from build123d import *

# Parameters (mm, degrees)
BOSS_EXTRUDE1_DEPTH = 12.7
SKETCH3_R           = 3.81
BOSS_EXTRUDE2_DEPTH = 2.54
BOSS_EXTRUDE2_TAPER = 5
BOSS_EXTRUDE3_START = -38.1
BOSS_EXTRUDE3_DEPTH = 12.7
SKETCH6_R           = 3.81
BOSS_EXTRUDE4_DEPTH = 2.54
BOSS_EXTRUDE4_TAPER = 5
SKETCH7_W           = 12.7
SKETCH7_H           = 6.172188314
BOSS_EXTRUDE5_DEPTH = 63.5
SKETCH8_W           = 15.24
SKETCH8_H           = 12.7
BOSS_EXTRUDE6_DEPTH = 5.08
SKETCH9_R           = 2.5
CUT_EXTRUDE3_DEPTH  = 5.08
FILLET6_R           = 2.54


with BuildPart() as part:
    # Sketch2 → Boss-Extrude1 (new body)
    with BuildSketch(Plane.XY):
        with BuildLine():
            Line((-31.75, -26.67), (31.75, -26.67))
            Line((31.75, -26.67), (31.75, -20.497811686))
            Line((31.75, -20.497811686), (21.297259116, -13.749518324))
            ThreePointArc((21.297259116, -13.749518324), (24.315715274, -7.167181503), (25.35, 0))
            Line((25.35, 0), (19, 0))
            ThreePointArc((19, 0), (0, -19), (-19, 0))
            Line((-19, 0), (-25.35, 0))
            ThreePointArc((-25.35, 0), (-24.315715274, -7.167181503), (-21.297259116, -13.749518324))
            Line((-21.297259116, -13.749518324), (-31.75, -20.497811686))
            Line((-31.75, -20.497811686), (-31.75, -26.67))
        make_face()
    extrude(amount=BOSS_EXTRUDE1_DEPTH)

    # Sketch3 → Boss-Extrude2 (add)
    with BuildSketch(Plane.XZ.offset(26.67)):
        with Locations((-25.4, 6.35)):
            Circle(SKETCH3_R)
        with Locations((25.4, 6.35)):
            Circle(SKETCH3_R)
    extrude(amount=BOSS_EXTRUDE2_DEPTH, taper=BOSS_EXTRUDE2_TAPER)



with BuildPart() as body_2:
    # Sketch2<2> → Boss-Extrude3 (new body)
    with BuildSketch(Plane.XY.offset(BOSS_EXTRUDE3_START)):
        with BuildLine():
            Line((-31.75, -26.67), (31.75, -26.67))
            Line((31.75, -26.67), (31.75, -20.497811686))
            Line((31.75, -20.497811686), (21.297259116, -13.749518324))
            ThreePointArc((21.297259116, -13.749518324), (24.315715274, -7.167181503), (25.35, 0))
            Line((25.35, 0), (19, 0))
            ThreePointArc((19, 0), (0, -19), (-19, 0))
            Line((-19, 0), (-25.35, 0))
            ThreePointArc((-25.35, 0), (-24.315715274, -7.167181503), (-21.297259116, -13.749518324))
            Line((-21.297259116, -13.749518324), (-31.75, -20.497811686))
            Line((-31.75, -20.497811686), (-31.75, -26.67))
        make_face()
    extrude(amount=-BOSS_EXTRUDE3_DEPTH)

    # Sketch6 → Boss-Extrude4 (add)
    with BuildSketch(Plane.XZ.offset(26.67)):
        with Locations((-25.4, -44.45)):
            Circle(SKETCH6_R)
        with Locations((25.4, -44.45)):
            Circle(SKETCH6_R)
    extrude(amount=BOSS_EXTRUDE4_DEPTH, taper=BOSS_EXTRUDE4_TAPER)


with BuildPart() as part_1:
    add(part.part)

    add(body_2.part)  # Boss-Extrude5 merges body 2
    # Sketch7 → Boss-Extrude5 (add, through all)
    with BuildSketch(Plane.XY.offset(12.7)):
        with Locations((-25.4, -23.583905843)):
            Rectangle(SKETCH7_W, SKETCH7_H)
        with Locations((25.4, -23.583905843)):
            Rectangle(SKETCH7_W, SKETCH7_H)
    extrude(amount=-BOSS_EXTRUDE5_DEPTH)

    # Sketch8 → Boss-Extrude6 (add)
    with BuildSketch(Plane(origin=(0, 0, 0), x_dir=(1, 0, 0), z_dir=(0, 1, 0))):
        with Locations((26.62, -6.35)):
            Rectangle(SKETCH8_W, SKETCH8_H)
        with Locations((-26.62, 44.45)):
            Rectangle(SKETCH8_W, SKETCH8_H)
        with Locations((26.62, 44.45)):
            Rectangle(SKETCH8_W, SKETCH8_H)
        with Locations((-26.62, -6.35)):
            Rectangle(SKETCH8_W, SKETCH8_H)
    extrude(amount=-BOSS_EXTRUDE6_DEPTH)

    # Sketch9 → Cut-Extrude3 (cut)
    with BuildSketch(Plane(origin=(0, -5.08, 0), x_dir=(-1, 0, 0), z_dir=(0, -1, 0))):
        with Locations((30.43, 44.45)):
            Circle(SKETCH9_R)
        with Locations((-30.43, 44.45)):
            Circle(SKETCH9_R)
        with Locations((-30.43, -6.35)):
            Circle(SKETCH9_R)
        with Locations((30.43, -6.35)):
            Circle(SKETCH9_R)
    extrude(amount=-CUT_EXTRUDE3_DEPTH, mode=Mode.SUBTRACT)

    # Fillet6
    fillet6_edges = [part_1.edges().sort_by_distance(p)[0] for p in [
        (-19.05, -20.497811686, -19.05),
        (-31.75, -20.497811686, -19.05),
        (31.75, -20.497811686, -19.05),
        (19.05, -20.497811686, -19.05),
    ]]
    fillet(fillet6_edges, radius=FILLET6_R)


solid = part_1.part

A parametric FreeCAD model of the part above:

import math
import FreeCAD as App
import Part
import Sketcher

V = App.Vector
Q = App.Units.Quantity


def edges_at(feature, points):
    """Names of the edges that pass closest to the given points."""
    edges = feature.Shape.Edges
    near = lambda p: min(range(len(edges)), key=lambda i: edges[i].distToShape(Part.Vertex(*p))[0])
    return sorted({f"Edge{near(p) + 1}" for p in points})


def add_polygon(sketch, points):
    """Adds a closed chain of lines whose ends are joined by coincident constraints."""
    first, n = sketch.GeometryCount, len(points)
    for a, b in zip(points, points[1:] + points[:1]):
        sketch.addGeometry(Part.LineSegment(App.Vector(*a, 0), App.Vector(*b, 0)), False)
    for i in range(n):
        sketch.addConstraint(Sketcher.Constraint("Coincident", first + i, 2, first + (i + 1) % n, 1))

doc = App.newDocument("Part")
body = doc.addObject("PartDesign::Body", "Body")

# Sketch on XY plane
sketch1 = body.newObject("Sketcher::SketchObject", "Sketch")
sketch1.AttachmentSupport = (doc.getObject("XY_Plane"), [""])
sketch1.MapMode = "FlatFace"
sketch1.addGeometry([
    Part.LineSegment(V(-32, -27, 0), V(32, -27, 0)),  # 0
    Part.LineSegment(V(32, -27, 0), V(32, -20, 0)),  # 1
    Part.LineSegment(V(32, -20, 0), V(21, -14, 0)),  # 2
    Part.ArcOfCircle(Part.Circle(V(0, 0, 0), V(0, 0, 1), 25), math.radians(-33), math.radians(0)),  # 3
    Part.LineSegment(V(25, 0, 0), V(19, 0, 0)),  # 4
    Part.ArcOfCircle(Part.Circle(V(0, 0, 0), V(0, 0, 1), 19), math.radians(180), math.radians(360)),  # 5
    Part.LineSegment(V(-19, 0, 0), V(-25, 0, 0)),  # 6
    Part.ArcOfCircle(Part.Circle(V(0, 0, 0), V(0, 0, 1), 25), math.radians(-180), math.radians(-147)),  # 7
    Part.LineSegment(V(-21, -14, 0), V(-32, -20, 0)),  # 8
    Part.LineSegment(V(-32, -20, 0), V(-32, -27, 0)),  # 9
], False)
sketch1.addConstraint([
    Sketcher.Constraint("Coincident", 0, 2, 1, 1),
    Sketcher.Constraint("Coincident", 1, 2, 2, 1),
    Sketcher.Constraint("Coincident", 2, 2, 3, 1),
    Sketcher.Constraint("Coincident", 3, 2, 4, 1),
    Sketcher.Constraint("Coincident", 4, 2, 5, 2),
    Sketcher.Constraint("Coincident", 5, 1, 6, 1),
    Sketcher.Constraint("Coincident", 6, 2, 7, 1),
    Sketcher.Constraint("Coincident", 7, 2, 8, 1),
    Sketcher.Constraint("Coincident", 8, 2, 9, 1),
    Sketcher.Constraint("Coincident", 9, 2, 0, 1),
    Sketcher.Constraint("Horizontal", 0),
    Sketcher.Constraint("Vertical", 1),
    Sketcher.Constraint("Horizontal", 4),
    Sketcher.Constraint("Horizontal", 6),
    Sketcher.Constraint("Vertical", 9),
    Sketcher.Constraint("Coincident", 3, 3, -1, 1),
    Sketcher.Constraint("Coincident", 5, 3, -1, 1),
    Sketcher.Constraint("Coincident", 7, 3, -1, 1),
    Sketcher.Constraint("Equal", 3, 7),
    Sketcher.Constraint("Symmetric", 1, 2, 8, 2, -2),
    Sketcher.Constraint("PointOnObject", 3, 2, -1),
    Sketcher.Constraint("PointOnObject", 5, 1, -1),
    Sketcher.Constraint("Horizontal", 2, 2, 7, 2),
    Sketcher.Constraint("DistanceX", 0, 1, 0, 2, Q("2.5 in")),
    Sketcher.Constraint("DistanceX", 4, 2, 4, 1, Q("0.25 in")),
    Sketcher.Constraint("DistanceY", 0, 2, -1, 1, Q("1.05 in")),
    Sketcher.Constraint("Radius", 3, 25.35),
    Sketcher.Constraint("DistanceY", 1, 1, 1, 2, 6.172188),
    Sketcher.Constraint("DistanceX", -1, 1, 2, 2, 21.297259),
])
pad1 = body.newObject("PartDesign::Pad", "Pad")
pad1.Profile = sketch1
pad1.Length = Q("0.5 in")

# Sketch on XZ plane
sketch2 = body.newObject("Sketcher::SketchObject", "Sketch001")
sketch2.AttachmentSupport = (doc.getObject("XZ_Plane"), [""])
sketch2.MapMode = "FlatFace"
sketch2.AttachmentOffset = App.Placement(V(0, 0, 1.05 * 25.4), App.Rotation())
sketch2.addGeometry([
    Part.Circle(V(-25.4, 6.3, 0), V(0, 0, 1), 3.8),
    Part.Circle(V(25.4, 6.3, 0), V(0, 0, 1), 3.8),
], False)
sketch2.addConstraint([
    Sketcher.Constraint("Equal", 0, 1),
    Sketcher.Constraint("Symmetric", 0, 3, 1, 3, -2),
    Sketcher.Constraint("Diameter", 0, Q("0.3 in")),
    Sketcher.Constraint("DistanceX", 0, 3, -1, 1, Q("1 in")),
    Sketcher.Constraint("DistanceY", -1, 1, 0, 3, Q("0.25 in")),
])
pad2 = body.newObject("PartDesign::Pad", "Pad001")
pad2.Profile = sketch2
pad2.Length = Q("0.1 in")
pad2.TaperAngle = -5
body2 = doc.addObject("PartDesign::Body", "Body001")

# Sketch on XY plane
sketch3 = body2.newObject("Sketcher::SketchObject", "Sketch002")
sketch3.AttachmentSupport = (doc.getObject("XY_Plane001"), [""])
sketch3.MapMode = "FlatFace"
sketch3.AttachmentOffset = App.Placement(V(0, 0, -1.5 * 25.4), App.Rotation())
sketch3.addGeometry([
    Part.LineSegment(V(-32, -27, 0), V(32, -27, 0)),  # 0
    Part.LineSegment(V(32, -27, 0), V(32, -20, 0)),  # 1
    Part.LineSegment(V(32, -20, 0), V(21, -14, 0)),  # 2
    Part.ArcOfCircle(Part.Circle(V(0, 0, 0), V(0, 0, 1), 25), math.radians(-33), math.radians(0)),  # 3
    Part.LineSegment(V(25, 0, 0), V(19, 0, 0)),  # 4
    Part.ArcOfCircle(Part.Circle(V(0, 0, 0), V(0, 0, 1), 19), math.radians(180), math.radians(360)),  # 5
    Part.LineSegment(V(-19, 0, 0), V(-25, 0, 0)),  # 6
    Part.ArcOfCircle(Part.Circle(V(0, 0, 0), V(0, 0, 1), 25), math.radians(-180), math.radians(-147)),  # 7
    Part.LineSegment(V(-21, -14, 0), V(-32, -20, 0)),  # 8
    Part.LineSegment(V(-32, -20, 0), V(-32, -27, 0)),  # 9
], False)
sketch3.addConstraint([
    Sketcher.Constraint("Coincident", 0, 2, 1, 1),
    Sketcher.Constraint("Coincident", 1, 2, 2, 1),
    Sketcher.Constraint("Coincident", 2, 2, 3, 1),
    Sketcher.Constraint("Coincident", 3, 2, 4, 1),
    Sketcher.Constraint("Coincident", 4, 2, 5, 2),
    Sketcher.Constraint("Coincident", 5, 1, 6, 1),
    Sketcher.Constraint("Coincident", 6, 2, 7, 1),
    Sketcher.Constraint("Coincident", 7, 2, 8, 1),
    Sketcher.Constraint("Coincident", 8, 2, 9, 1),
    Sketcher.Constraint("Coincident", 9, 2, 0, 1),
    Sketcher.Constraint("Horizontal", 0),
    Sketcher.Constraint("Vertical", 1),
    Sketcher.Constraint("Horizontal", 4),
    Sketcher.Constraint("Horizontal", 6),
    Sketcher.Constraint("Vertical", 9),
    Sketcher.Constraint("Coincident", 3, 3, -1, 1),
    Sketcher.Constraint("Coincident", 5, 3, -1, 1),
    Sketcher.Constraint("Coincident", 7, 3, -1, 1),
    Sketcher.Constraint("Equal", 3, 7),
    Sketcher.Constraint("Symmetric", 1, 2, 8, 2, -2),
    Sketcher.Constraint("PointOnObject", 3, 2, -1),
    Sketcher.Constraint("PointOnObject", 5, 1, -1),
    Sketcher.Constraint("Horizontal", 2, 2, 7, 2),
    Sketcher.Constraint("DistanceX", 0, 1, 0, 2, Q("2.5 in")),
    Sketcher.Constraint("DistanceX", 4, 2, 4, 1, Q("0.25 in")),
    Sketcher.Constraint("DistanceY", 0, 2, -1, 1, Q("1.05 in")),
    Sketcher.Constraint("Radius", 3, 25.35),
    Sketcher.Constraint("DistanceY", 1, 1, 1, 2, 6.172188),
    Sketcher.Constraint("DistanceX", -1, 1, 2, 2, 21.297259),
])
pad3 = body2.newObject("PartDesign::Pad", "Pad002")
pad3.Profile = sketch3
pad3.Length = Q("0.5 in")
pad3.Reversed = True

# Sketch on XZ plane
sketch4 = body2.newObject("Sketcher::SketchObject", "Sketch003")
sketch4.AttachmentSupport = (doc.getObject("XZ_Plane001"), [""])
sketch4.MapMode = "FlatFace"
sketch4.AttachmentOffset = App.Placement(V(0, 0, 1.05 * 25.4), App.Rotation())
sketch4.addGeometry([
    Part.Circle(V(-25.4, -44.5, 0), V(0, 0, 1), 3.8),
    Part.Circle(V(25.4, -44.5, 0), V(0, 0, 1), 3.8),
], False)
sketch4.addConstraint([
    Sketcher.Constraint("Equal", 0, 1),
    Sketcher.Constraint("Symmetric", 0, 3, 1, 3, -2),
    Sketcher.Constraint("Diameter", 0, Q("0.3 in")),
    Sketcher.Constraint("DistanceX", 0, 3, -1, 1, Q("1 in")),
    Sketcher.Constraint("DistanceY", 0, 3, -1, 1, Q("1.75 in")),
])
pad4 = body2.newObject("PartDesign::Pad", "Pad003")
pad4.Profile = sketch4
pad4.Length = Q("0.1 in")
pad4.TaperAngle = -5
body.AllowCompound = True
doc.recompute()

boolean = body.newObject("PartDesign::Boolean", "Boolean")
boolean.Type = "Fuse"
boolean.addObjects([body2])

# Sketch on XY plane
sketch5 = body.newObject("Sketcher::SketchObject", "Sketch004")
sketch5.AttachmentSupport = (doc.getObject("XY_Plane"), [""])
sketch5.MapMode = "FlatFace"
sketch5.AttachmentOffset = App.Placement(V(0, 0, 0.5 * 25.4), App.Rotation())
add_polygon(sketch5, [(-32, -20), (-32, -27), (-19, -27), (-19, -20)])  # lines 0-3
add_polygon(sketch5, [(19, -20), (19, -27), (32, -27), (32, -20)])  # lines 4-7
sketch5.addConstraint([
    Sketcher.Constraint("Vertical", 0),
    Sketcher.Constraint("Horizontal", 1),
    Sketcher.Constraint("Vertical", 2),
    Sketcher.Constraint("Horizontal", 3),
    Sketcher.Constraint("Vertical", 4),
    Sketcher.Constraint("Horizontal", 5),
    Sketcher.Constraint("Vertical", 6),
    Sketcher.Constraint("Horizontal", 7),
    Sketcher.Constraint("Symmetric", 1, 2, 4, 2, -2),
    Sketcher.Constraint("Symmetric", 3, 2, 6, 2, -2),
    Sketcher.Constraint("DistanceX", 1, 1, 1, 2, Q("0.5 in")),
    Sketcher.Constraint("DistanceX", 0, 2, 4, 2, Q("2 in")),
    Sketcher.Constraint("DistanceY", 0, 2, -1, 1, Q("1.05 in")),
    Sketcher.Constraint("DistanceY", 0, 2, 0, 1, 6.172188),
])
pad5 = body.newObject("PartDesign::Pad", "Pad004")
pad5.Profile = sketch5
pad5.Type = "UpToLast"
pad5.Reversed = True

# Sketch on XZ plane
sketch6 = body.newObject("Sketcher::SketchObject", "Sketch005")
sketch6.AttachmentSupport = (doc.getObject("XZ_Plane"), [""])
sketch6.MapMode = "FlatFace"
add_polygon(sketch6, [(19, 0), (19, 13), (34, 13), (34, 0)])  # lines 0-3
add_polygon(sketch6, [(-34, -51), (-34, -38), (-19, -38), (-19, -51)])  # lines 4-7
add_polygon(sketch6, [(19, -51), (19, -38), (34, -38), (34, -51)])  # lines 8-11
add_polygon(sketch6, [(-34, 0), (-34, 13), (-19, 13), (-19, 0)])  # lines 12-15
sketch6.addConstraint([
    Sketcher.Constraint("Vertical", 0),
    Sketcher.Constraint("Horizontal", 1),
    Sketcher.Constraint("Vertical", 2),
    Sketcher.Constraint("Horizontal", 3),
    Sketcher.Constraint("Vertical", 4),
    Sketcher.Constraint("Horizontal", 5),
    Sketcher.Constraint("Vertical", 6),
    Sketcher.Constraint("Horizontal", 7),
    Sketcher.Constraint("Vertical", 8),
    Sketcher.Constraint("Horizontal", 9),
    Sketcher.Constraint("Vertical", 10),
    Sketcher.Constraint("Horizontal", 11),
    Sketcher.Constraint("Vertical", 12),
    Sketcher.Constraint("Horizontal", 13),
    Sketcher.Constraint("Vertical", 14),
    Sketcher.Constraint("Horizontal", 15),
    Sketcher.Constraint("Symmetric", 3, 2, 14, 2, -1, 1),
    Sketcher.Constraint("Symmetric", 5, 2, 8, 2, -2),
    Sketcher.Constraint("Symmetric", 7, 2, 10, 2, -2),
    Sketcher.Constraint("Symmetric", 1, 2, 12, 2, -2),
    Sketcher.Constraint("PointOnObject", 2, 2, -1),
    Sketcher.Constraint("Vertical", 3, 2, 8, 2),
    Sketcher.Constraint("Vertical", 2, 2, 9, 2),
    Sketcher.Constraint("Equal", 2, 4),
    Sketcher.Constraint("DistanceX", 1, 1, 1, 2, Q("0.6 in")),
    Sketcher.Constraint("DistanceY", 0, 1, 0, 2, Q("0.5 in")),
    Sketcher.Constraint("DistanceY", 6, 2, -1, 1, Q("2 in")),
    Sketcher.Constraint("DistanceX", -1, 1, 0, 2, 19.0),
])
pad6 = body.newObject("PartDesign::Pad", "Pad005")
pad6.Profile = sketch6
pad6.Length = Q("0.2 in")

# Sketch on XZ plane
sketch7 = body.newObject("Sketcher::SketchObject", "Sketch006")
sketch7.AttachmentSupport = (doc.getObject("XZ_Plane"), [""])
sketch7.MapMode = "FlatFace"
sketch7.AttachmentOffset = App.Placement(V(0, 0, 0.2 * 25.4), App.Rotation())
sketch7.addGeometry([
    Part.Circle(V(-30.4, -44.5, 0), V(0, 0, 1), 2.5),
    Part.Circle(V(30.4, -44.5, 0), V(0, 0, 1), 2.5),
    Part.Circle(V(30.4, 6.3, 0), V(0, 0, 1), 2.5),
    Part.Circle(V(-30.4, 6.3, 0), V(0, 0, 1), 2.5),
], False)
sketch7.addConstraint([
    Sketcher.Constraint("Equal", 0, 1),
    Sketcher.Constraint("Equal", 1, 2),
    Sketcher.Constraint("Equal", 2, 3),
    Sketcher.Constraint("Symmetric", 0, 3, 1, 3, -2),
    Sketcher.Constraint("Symmetric", 2, 3, 3, 3, -2),
    Sketcher.Constraint("Vertical", 1, 3, 2, 3),
    Sketcher.Constraint("DistanceY", 1, 3, 2, 3, Q("2 in")),
    Sketcher.Constraint("Diameter", 0, 5.0),
    Sketcher.Constraint("DistanceY", 0, 3, -1, 1, Q("1.75 in")),
    Sketcher.Constraint("DistanceX", 0, 3, -1, 1, 30.43),
])
pocket1 = body.newObject("PartDesign::Pocket", "Pocket")
pocket1.Profile = sketch7
pocket1.Length = Q("0.2 in")
doc.recompute()

fillet = body.newObject("PartDesign::Fillet", "Fillet")
fillet.Base = (pocket1, edges_at(pocket1, [
    (-19.05, -20.498, -19.05),
    (-31.75, -20.498, -19.05),
    (31.75, -20.498, -19.05),
    (19.05, -20.498, -19.05),
]))
fillet.Radius = Q("0.1 in")

doc.recompute()
